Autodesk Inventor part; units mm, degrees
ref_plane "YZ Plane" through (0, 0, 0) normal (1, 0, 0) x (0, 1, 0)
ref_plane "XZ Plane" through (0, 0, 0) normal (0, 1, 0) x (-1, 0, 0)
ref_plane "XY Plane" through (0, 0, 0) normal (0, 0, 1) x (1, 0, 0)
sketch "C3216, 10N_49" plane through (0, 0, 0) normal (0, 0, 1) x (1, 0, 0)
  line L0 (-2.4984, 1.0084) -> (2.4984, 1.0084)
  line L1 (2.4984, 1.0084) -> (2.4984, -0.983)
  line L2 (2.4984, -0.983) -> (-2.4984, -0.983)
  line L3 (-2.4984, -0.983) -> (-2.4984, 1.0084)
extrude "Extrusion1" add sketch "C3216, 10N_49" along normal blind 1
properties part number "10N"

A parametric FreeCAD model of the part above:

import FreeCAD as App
import Part
import Sketcher
from FreeCAD import Vector
Q = App.Units.Quantity

doc = App.newDocument("Part")
body = doc.addObject("PartDesign::Body", "Body")

# Sketch on XY plane
sketch1 = body.newObject("Sketcher::SketchObject", "Sketch")
sketch1.AttachmentSupport = (doc.getObject("XY_Plane"), [""])
sketch1.MapMode = "FlatFace"
sketch1.addGeometry([
    Part.LineSegment(Vector(2.5, 1, 0), Vector(-2.5, 1, 0)),
    Part.LineSegment(Vector(-2.5, 1, 0), Vector(-2.5, -1, 0)),
    Part.LineSegment(Vector(-2.5, -1, 0), Vector(2.5, -1, 0)),
    Part.LineSegment(Vector(2.5, -1, 0), Vector(2.5, 1, 0)),
], False)
sketch1.addConstraint([
    Sketcher.Constraint("Coincident", 0, 2, 1, 1),
    Sketcher.Constraint("Coincident", 1, 2, 2, 1),
    Sketcher.Constraint("Coincident", 2, 2, 3, 1),
    Sketcher.Constraint("Coincident", 3, 2, 0, 1),
    Sketcher.Constraint("Horizontal", 0),
    Sketcher.Constraint("Vertical", 1),
    Sketcher.Constraint("Horizontal", 2),
    Sketcher.Constraint("Vertical", 3),
    Sketcher.Constraint("DistanceX", 0, 2, 0, 1, Q("4.9968 mm")),
    Sketcher.Constraint("DistanceY", 1, 2, 1, 1, Q("1.9914 mm")),
    Sketcher.Constraint("DistanceY", 1, 2, -1, 1, Q("0.983 mm")),
    Sketcher.Constraint("DistanceX", 0, 2, -1, 1, Q("2.4984 mm")),
])
pad1 = body.newObject("PartDesign::Pad", "Pad")
pad1.Profile = sketch1
pad1.Length = 1

doc.recompute()
